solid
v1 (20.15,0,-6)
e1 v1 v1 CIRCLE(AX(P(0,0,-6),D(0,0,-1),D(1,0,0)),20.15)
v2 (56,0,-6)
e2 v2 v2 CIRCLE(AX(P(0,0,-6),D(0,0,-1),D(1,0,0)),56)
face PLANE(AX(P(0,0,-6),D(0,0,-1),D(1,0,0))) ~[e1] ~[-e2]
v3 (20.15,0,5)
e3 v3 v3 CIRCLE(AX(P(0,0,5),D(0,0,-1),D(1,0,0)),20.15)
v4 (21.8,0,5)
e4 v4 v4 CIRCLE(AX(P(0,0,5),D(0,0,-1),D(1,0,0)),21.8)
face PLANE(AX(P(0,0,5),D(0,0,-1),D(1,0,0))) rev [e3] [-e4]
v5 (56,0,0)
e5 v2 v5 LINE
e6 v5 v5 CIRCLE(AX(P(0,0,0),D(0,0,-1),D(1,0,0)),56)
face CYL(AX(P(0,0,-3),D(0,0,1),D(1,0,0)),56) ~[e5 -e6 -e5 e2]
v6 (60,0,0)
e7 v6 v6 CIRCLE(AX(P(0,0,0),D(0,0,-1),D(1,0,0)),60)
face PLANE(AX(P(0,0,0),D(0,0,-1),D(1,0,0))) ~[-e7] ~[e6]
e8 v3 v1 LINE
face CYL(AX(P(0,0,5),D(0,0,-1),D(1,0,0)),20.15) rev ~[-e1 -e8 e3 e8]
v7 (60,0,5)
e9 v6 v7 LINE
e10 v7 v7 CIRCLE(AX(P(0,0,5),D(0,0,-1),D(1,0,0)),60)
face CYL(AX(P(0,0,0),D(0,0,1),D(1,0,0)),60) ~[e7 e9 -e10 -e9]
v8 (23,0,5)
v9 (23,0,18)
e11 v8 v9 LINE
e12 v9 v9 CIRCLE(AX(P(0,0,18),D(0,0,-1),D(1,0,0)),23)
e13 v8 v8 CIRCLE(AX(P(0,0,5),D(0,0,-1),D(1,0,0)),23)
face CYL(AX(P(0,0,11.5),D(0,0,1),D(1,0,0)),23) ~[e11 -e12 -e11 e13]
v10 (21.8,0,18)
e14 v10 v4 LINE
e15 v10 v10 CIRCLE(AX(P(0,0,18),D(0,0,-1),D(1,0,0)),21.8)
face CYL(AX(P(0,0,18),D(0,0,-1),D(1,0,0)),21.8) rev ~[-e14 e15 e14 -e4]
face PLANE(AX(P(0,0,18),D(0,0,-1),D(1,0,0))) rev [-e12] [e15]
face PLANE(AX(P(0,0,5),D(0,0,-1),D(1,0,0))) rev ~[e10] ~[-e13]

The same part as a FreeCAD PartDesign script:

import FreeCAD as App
import Part
import Sketcher
from FreeCAD import Vector

doc = App.newDocument("Part")
params = doc.addObject("Spreadsheet::Sheet", "Params")
for row, (alias, value) in enumerate([
    ("sketch1_width", "4 mm"),
    ("sketch1_width2", "37 mm"),
    ("sketch1_height", "6 mm"),
    ("sketch1_height2", "5 mm"),
    ("sketch1_height3", "13 mm"),
    ("revolution_angle", "360 deg"),
], start=1):
    params.set(f"A{row}", alias)
    params.set(f"B{row}", "=" + value)
    params.setAlias(f"B{row}", alias)

body = doc.addObject("PartDesign::Body", "Body")

# Sketch on XZ plane
sketch1 = doc.addObject("Sketcher::SketchObject", "Sketch")
body.addObject(sketch1)
sketch1.AttachmentSupport = (doc.XZ_Plane, [""])
sketch1.MapMode = "FlatFace"
sketch1.addGeometry(Part.LineSegment(Vector(56, -6, 0), Vector(56, 0, 0)), False)
sketch1.addGeometry(Part.LineSegment(Vector(56, 0, 0), Vector(60, 0, 0)), False)
sketch1.addGeometry(Part.LineSegment(Vector(60, 0, 0), Vector(60, 5, 0)), False)
sketch1.addGeometry(Part.LineSegment(Vector(60, 5, 0), Vector(23, 5, 0)), False)
sketch1.addGeometry(Part.LineSegment(Vector(23, 5, 0), Vector(23, 18, 0)), False)
sketch1.addGeometry(Part.LineSegment(Vector(23, 18, 0), Vector(21.8, 18, 0)), False)
sketch1.addGeometry(Part.LineSegment(Vector(21.8, 18, 0), Vector(21.8, 5, 0)), False)
sketch1.addGeometry(Part.LineSegment(Vector(21.8, 5, 0), Vector(20.1, 5, 0)), False)
sketch1.addGeometry(Part.LineSegment(Vector(20.1, 5, 0), Vector(20.1, -6, 0)), False)
sketch1.addGeometry(Part.LineSegment(Vector(20.1, -6, 0), Vector(56, -6, 0)), False)
sketch1.addConstraint(Sketcher.Constraint("Coincident", 0, 2, 1, 1))
sketch1.addConstraint(Sketcher.Constraint("Coincident", 1, 2, 2, 1))
sketch1.addConstraint(Sketcher.Constraint("Coincident", 2, 2, 3, 1))
sketch1.addConstraint(Sketcher.Constraint("Coincident", 3, 2, 4, 1))
sketch1.addConstraint(Sketcher.Constraint("Coincident", 4, 2, 5, 1))
sketch1.addConstraint(Sketcher.Constraint("Coincident", 5, 2, 6, 1))
sketch1.addConstraint(Sketcher.Constraint("Coincident", 6, 2, 7, 1))
sketch1.addConstraint(Sketcher.Constraint("Coincident", 7, 2, 8, 1))
sketch1.addConstraint(Sketcher.Constraint("Coincident", 8, 2, 9, 1))
sketch1.addConstraint(Sketcher.Constraint("Coincident", 9, 2, 0, 1))
sketch1.addConstraint(Sketcher.Constraint("Vertical", 0))
sketch1.addConstraint(Sketcher.Constraint("Horizontal", 1))
sketch1.addConstraint(Sketcher.Constraint("Vertical", 2))
sketch1.addConstraint(Sketcher.Constraint("Horizontal", 3))
sketch1.addConstraint(Sketcher.Constraint("Vertical", 4))
sketch1.addConstraint(Sketcher.Constraint("Horizontal", 5))
sketch1.addConstraint(Sketcher.Constraint("Vertical", 6))
sketch1.addConstraint(Sketcher.Constraint("Horizontal", 7))
sketch1.addConstraint(Sketcher.Constraint("Vertical", 8))
sketch1.addConstraint(Sketcher.Constraint("Horizontal", 9))
sketch1.addConstraint(Sketcher.Constraint("PointOnObject", 0, 2, -1))
sketch1.addConstraint(Sketcher.Constraint("Horizontal", 3, 2, 6, 2))
sketch1.addConstraint(Sketcher.Constraint("DistanceX", 1, 1, 1, 2, 4.0))
sketch1.addConstraint(Sketcher.Constraint("DistanceX", 3, 2, 3, 1, 37.0))
sketch1.addConstraint(Sketcher.Constraint("DistanceY", 0, 1, 0, 2, 6.0))
sketch1.addConstraint(Sketcher.Constraint("DistanceY", 2, 1, 2, 2, 5.0))
sketch1.addConstraint(Sketcher.Constraint("DistanceY", 4, 1, 4, 2, 13.0))
sketch1.addConstraint(Sketcher.Constraint("DistanceX", 5, 2, 5, 1, 1.2))
sketch1.addConstraint(Sketcher.Constraint("DistanceX", -1, 1, 0, 2, 56.0))
sketch1.addConstraint(Sketcher.Constraint("DistanceX", 7, 2, 7, 1, 1.65))
sketch1.setExpression("Constraints[22]", "Params.sketch1_width")
sketch1.setExpression("Constraints[23]", "Params.sketch1_width2")
sketch1.setExpression("Constraints[24]", "Params.sketch1_height")
sketch1.setExpression("Constraints[25]", "Params.sketch1_height2")
sketch1.setExpression("Constraints[26]", "Params.sketch1_height3")
revolution = doc.addObject("PartDesign::Revolution", "Revolution")
body.addObject(revolution)
revolution.Profile = sketch1
revolution.ReferenceAxis = (sketch1, ["V_Axis"])
revolution.setExpression("Angle", "Params.revolution_angle")

doc.recompute()
